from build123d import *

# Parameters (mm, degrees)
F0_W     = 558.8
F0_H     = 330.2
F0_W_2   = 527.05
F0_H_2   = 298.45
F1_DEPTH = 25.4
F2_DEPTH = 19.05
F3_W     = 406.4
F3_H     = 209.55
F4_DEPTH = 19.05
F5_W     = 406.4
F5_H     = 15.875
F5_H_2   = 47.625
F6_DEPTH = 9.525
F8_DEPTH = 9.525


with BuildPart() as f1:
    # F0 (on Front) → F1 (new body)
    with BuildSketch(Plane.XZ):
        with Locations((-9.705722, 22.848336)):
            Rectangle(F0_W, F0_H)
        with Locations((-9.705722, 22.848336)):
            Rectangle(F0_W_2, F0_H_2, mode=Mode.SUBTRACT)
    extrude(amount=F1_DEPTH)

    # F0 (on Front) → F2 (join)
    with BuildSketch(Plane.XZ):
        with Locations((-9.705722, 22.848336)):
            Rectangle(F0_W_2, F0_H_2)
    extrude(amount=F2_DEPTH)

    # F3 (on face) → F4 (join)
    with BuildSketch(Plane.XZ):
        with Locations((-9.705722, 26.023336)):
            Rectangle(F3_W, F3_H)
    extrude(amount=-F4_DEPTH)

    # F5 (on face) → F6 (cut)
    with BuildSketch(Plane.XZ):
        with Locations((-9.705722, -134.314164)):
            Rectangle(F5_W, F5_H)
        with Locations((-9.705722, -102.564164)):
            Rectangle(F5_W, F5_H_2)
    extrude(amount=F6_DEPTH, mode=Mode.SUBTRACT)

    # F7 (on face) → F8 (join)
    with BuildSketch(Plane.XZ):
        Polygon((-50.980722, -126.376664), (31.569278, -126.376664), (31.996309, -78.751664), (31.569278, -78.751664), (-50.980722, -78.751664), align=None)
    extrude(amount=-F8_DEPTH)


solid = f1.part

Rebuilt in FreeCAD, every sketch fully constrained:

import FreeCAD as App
import Part
import Sketcher
from FreeCAD import Vector
Q = App.Units.Quantity


def add_polygon(sketch, points):
    """Adds a closed chain of lines whose ends are joined by coincident constraints."""
    first, n = sketch.GeometryCount, len(points)
    for a, b in zip(points, points[1:] + points[:1]):
        sketch.addGeometry(Part.LineSegment(App.Vector(*a, 0), App.Vector(*b, 0)), False)
    for i in range(n):
        sketch.addConstraint(Sketcher.Constraint("Coincident", first + i, 2, first + (i + 1) % n, 1))

doc = App.newDocument("Part")
body = doc.addObject("PartDesign::Body", "Body")

# Sketch on XZ plane
sketch1 = body.newObject("Sketcher::SketchObject", "Sketch")
sketch1.AttachmentSupport = (doc.getObject("XZ_Plane"), [""])
sketch1.MapMode = "FlatFace"
add_polygon(sketch1, [(-289.105722, 187.948336), (-289.105722, -142.251664), (269.694278, -142.251664), (269.694278, 187.948336)])  # lines 0-3
add_polygon(sketch1, [(253.819278, -126.376664), (-273.230722, -126.376664), (-273.230722, 172.073336), (253.819278, 172.073336)])  # lines 4-7
sketch1.addConstraint([
    Sketcher.Constraint("Vertical", 0),
    Sketcher.Constraint("Horizontal", 1),
    Sketcher.Constraint("Vertical", 2),
    Sketcher.Constraint("Horizontal", 3),
    Sketcher.Constraint("Horizontal", 4),
    Sketcher.Constraint("Vertical", 5),
    Sketcher.Constraint("Horizontal", 6),
    Sketcher.Constraint("Vertical", 7),
    Sketcher.Constraint("DistanceX", 1, 1, 1, 2, Q("22 in")),
    Sketcher.Constraint("DistanceY", 0, 2, 0, 1, Q("13 in")),
    Sketcher.Constraint("DistanceX", 4, 2, 4, 1, Q("20.75 in")),
    Sketcher.Constraint("DistanceY", 5, 1, 5, 2, Q("11.75 in")),
    Sketcher.Constraint("DistanceX", 0, 2, 4, 2, Q("0.625 in")),
    Sketcher.Constraint("DistanceY", 0, 2, 4, 2, Q("0.625 in")),
    Sketcher.Constraint("DistanceX", 0, 2, -1, 1, Q("289.105722 mm")),
    Sketcher.Constraint("DistanceY", 0, 2, -1, 1, Q("142.251664 mm")),
])
pad1 = body.newObject("PartDesign::Pad", "Pad")
pad1.Profile = sketch1
pad1.Length = Q("1 in")

# Sketch on XZ plane
sketch2 = body.newObject("Sketcher::SketchObject", "Sketch001")
sketch2.AttachmentSupport = (doc.getObject("XZ_Plane"), [""])
sketch2.MapMode = "FlatFace"
add_polygon(sketch2, [(-273.230722, 172.073336), (-273.230722, -126.376664), (253.819278, -126.376664), (253.819278, 172.073336)])  # lines 0-3
sketch2.addConstraint([
    Sketcher.Constraint("Vertical", 0),
    Sketcher.Constraint("Horizontal", 1),
    Sketcher.Constraint("Vertical", 2),
    Sketcher.Constraint("Horizontal", 3),
    Sketcher.Constraint("DistanceX", 1, 1, 1, 2, Q("20.75 in")),
    Sketcher.Constraint("DistanceY", 0, 2, 0, 1, Q("11.75 in")),
    Sketcher.Constraint("DistanceX", 0, 2, -1, 1, Q("273.230722 mm")),
    Sketcher.Constraint("DistanceY", 0, 2, -1, 1, Q("126.376664 mm")),
])
pad2 = body.newObject("PartDesign::Pad", "Pad001")
pad2.Profile = sketch2
pad2.Length = Q("0.75 in")

# Sketch on XZ plane
sketch3 = body.newObject("Sketcher::SketchObject", "Sketch002")
sketch3.AttachmentSupport = (doc.getObject("XZ_Plane"), [""])
sketch3.MapMode = "FlatFace"
add_polygon(sketch3, [(-212.905722, 130.798336), (-212.905722, -78.751664), (193.494278, -78.751664), (193.494278, 130.798336)])  # lines 0-3
sketch3.addConstraint([
    Sketcher.Constraint("Vertical", 0),
    Sketcher.Constraint("Horizontal", 1),
    Sketcher.Constraint("Vertical", 2),
    Sketcher.Constraint("Horizontal", 3),
    Sketcher.Constraint("DistanceX", 1, 1, 1, 2, Q("16 in")),
    Sketcher.Constraint("DistanceY", 0, 2, 0, 1, Q("8.25 in")),
    Sketcher.Constraint("DistanceX", 0, 2, -1, 1, Q("212.905722 mm")),
    Sketcher.Constraint("DistanceY", 0, 2, -1, 1, Q("78.751664 mm")),
])
pad3 = body.newObject("PartDesign::Pad", "Pad002")
pad3.Profile = sketch3
pad3.Length = Q("0.75 in")
pad3.Reversed = True

# Sketch on XZ plane
sketch4 = body.newObject("Sketcher::SketchObject", "Sketch003")
sketch4.AttachmentSupport = (doc.getObject("XZ_Plane"), [""])
sketch4.MapMode = "FlatFace"
add_polygon(sketch4, [(-212.905722, -142.251664), (193.494278, -142.251664), (193.494278, -78.751664), (-212.905722, -78.751664)])  # lines 0-3
sketch4.addConstraint([
    Sketcher.Constraint("Horizontal", 0),
    Sketcher.Constraint("Vertical", 1),
    Sketcher.Constraint("Horizontal", 2),
    Sketcher.Constraint("Vertical", 3),
    Sketcher.Constraint("DistanceX", 0, 1, 0, 2, Q("16 in")),
    Sketcher.Constraint("DistanceY", 1, 1, 1, 2, Q("2.5 in")),
    Sketcher.Constraint("DistanceX", -1, 1, 0, 2, Q("193.494278 mm")),
    Sketcher.Constraint("DistanceY", 0, 2, -1, 1, Q("142.251664 mm")),
])
pocket1 = body.newObject("PartDesign::Pocket", "Pocket")
pocket1.Profile = sketch4
pocket1.Length = Q("0.375 in")
pocket1.Reversed = True

# Sketch on XZ plane
sketch5 = body.newObject("Sketcher::SketchObject", "Sketch004")
sketch5.AttachmentSupport = (doc.getObject("XZ_Plane"), [""])
sketch5.MapMode = "FlatFace"
add_polygon(sketch5, [(-50.980722, -126.376664), (31.569278, -126.376664), (31.996309, -78.751664), (-50.980722, -78.751664)])  # lines 0-3
sketch5.addConstraint([
    Sketcher.Constraint("Horizontal", 0),
    Sketcher.Constraint("Horizontal", 2),
    Sketcher.Constraint("Vertical", 3),
    Sketcher.Constraint("DistanceX", 0, 1, 0, 2, Q("3.25 in")),
    Sketcher.Constraint("DistanceY", 3, 2, 3, 1, Q("1.875 in")),
    Sketcher.Constraint("DistanceX", 2, 2, 2, 1, Q("82.977031 mm")),
    Sketcher.Constraint("DistanceX", -1, 1, 0, 2, Q("31.569278 mm")),
    Sketcher.Constraint("DistanceY", 0, 2, -1, 1, Q("126.376664 mm")),
])
pad4 = body.newObject("PartDesign::Pad", "Pad003")
pad4.Profile = sketch5
pad4.Length = Q("0.375 in")
pad4.Reversed = True

doc.recompute()
